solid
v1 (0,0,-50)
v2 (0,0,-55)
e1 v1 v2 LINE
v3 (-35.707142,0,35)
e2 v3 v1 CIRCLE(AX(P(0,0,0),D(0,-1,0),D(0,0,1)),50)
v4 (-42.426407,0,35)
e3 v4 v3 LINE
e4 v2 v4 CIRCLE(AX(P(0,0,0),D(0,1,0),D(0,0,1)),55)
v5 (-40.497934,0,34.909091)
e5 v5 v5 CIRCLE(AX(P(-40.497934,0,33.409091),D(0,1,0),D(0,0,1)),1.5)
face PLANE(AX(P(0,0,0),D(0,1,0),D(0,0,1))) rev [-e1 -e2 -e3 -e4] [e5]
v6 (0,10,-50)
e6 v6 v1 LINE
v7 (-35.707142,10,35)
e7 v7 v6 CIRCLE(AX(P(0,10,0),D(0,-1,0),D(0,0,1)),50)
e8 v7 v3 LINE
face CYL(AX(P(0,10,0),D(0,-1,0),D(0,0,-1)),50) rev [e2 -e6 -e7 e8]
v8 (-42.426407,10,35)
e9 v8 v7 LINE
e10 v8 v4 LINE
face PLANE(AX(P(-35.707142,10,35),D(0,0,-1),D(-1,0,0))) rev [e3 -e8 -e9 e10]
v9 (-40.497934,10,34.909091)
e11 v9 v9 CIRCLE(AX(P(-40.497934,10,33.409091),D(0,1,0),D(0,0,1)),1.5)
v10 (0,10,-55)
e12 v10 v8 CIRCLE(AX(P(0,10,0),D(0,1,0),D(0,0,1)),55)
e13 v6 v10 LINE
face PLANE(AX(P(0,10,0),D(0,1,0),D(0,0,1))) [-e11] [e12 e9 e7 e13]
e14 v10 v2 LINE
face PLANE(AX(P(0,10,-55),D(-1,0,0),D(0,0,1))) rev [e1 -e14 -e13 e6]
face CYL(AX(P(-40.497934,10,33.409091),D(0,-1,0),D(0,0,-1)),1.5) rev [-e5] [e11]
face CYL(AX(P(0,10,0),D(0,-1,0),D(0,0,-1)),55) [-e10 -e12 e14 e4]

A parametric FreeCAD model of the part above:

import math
import FreeCAD as App
import Part
import Sketcher
Q = App.Units.Quantity

doc = App.newDocument("Part")
body = doc.addObject("PartDesign::Body", "Body")

# Sketch on XZ plane
sketch1 = body.newObject("Sketcher::SketchObject", "Sketch")
sketch1.AttachmentSupport = (doc.getObject("XZ_Plane"), [""])
sketch1.MapMode = "FlatFace"
sketch1.addGeometry([
    Part.LineSegment(App.Vector(0, -50, 0), App.Vector(0, -55, 0)),  # 0
    Part.ArcOfCircle(Part.Circle(App.Vector(0, 0, 0), App.Vector(0, 0, 1), 55), math.radians(140), math.radians(270)),  # 1
    Part.LineSegment(App.Vector(-42.4, 35, 0), App.Vector(-35.7, 35, 0)),  # 2
    Part.ArcOfCircle(Part.Circle(App.Vector(0, 0, 0), App.Vector(0, 0, 1), 50), math.radians(136), math.radians(270)),  # 3
    Part.Circle(App.Vector(-40.5, 33.4, 0), App.Vector(0, 0, 1), 1.5),  # 4
], False)
sketch1.addConstraint([
    Sketcher.Constraint("Coincident", 0, 2, 1, 2),
    Sketcher.Constraint("Coincident", 1, 1, 2, 1),
    Sketcher.Constraint("Coincident", 2, 2, 3, 1),
    Sketcher.Constraint("Coincident", 3, 2, 0, 1),
    Sketcher.Constraint("Vertical", 0),
    Sketcher.Constraint("Horizontal", 2),
    Sketcher.Constraint("Coincident", 1, 3, -1, 1),
    Sketcher.Constraint("Coincident", 3, 3, -1, 1),
    Sketcher.Constraint("PointOnObject", 0, 2, -2),
    Sketcher.Constraint("Diameter", 4, Q("3 mm")),
    Sketcher.Constraint("Radius", 1, Q("55 mm")),
    Sketcher.Constraint("Radius", 3, Q("50 mm")),
    Sketcher.Constraint("DistanceY", -1, 1, 1, 1, Q("35 mm")),
    Sketcher.Constraint("DistanceY", -1, 1, 4, 3, Q("33.409091 mm")),
    Sketcher.Constraint("DistanceX", 4, 3, 2, 2, Q("4.790792 mm")),
])
pad1 = body.newObject("PartDesign::Pad", "Pad")
pad1.Profile = sketch1
pad1.Length = 10
pad1.Reversed = True

doc.recompute()
